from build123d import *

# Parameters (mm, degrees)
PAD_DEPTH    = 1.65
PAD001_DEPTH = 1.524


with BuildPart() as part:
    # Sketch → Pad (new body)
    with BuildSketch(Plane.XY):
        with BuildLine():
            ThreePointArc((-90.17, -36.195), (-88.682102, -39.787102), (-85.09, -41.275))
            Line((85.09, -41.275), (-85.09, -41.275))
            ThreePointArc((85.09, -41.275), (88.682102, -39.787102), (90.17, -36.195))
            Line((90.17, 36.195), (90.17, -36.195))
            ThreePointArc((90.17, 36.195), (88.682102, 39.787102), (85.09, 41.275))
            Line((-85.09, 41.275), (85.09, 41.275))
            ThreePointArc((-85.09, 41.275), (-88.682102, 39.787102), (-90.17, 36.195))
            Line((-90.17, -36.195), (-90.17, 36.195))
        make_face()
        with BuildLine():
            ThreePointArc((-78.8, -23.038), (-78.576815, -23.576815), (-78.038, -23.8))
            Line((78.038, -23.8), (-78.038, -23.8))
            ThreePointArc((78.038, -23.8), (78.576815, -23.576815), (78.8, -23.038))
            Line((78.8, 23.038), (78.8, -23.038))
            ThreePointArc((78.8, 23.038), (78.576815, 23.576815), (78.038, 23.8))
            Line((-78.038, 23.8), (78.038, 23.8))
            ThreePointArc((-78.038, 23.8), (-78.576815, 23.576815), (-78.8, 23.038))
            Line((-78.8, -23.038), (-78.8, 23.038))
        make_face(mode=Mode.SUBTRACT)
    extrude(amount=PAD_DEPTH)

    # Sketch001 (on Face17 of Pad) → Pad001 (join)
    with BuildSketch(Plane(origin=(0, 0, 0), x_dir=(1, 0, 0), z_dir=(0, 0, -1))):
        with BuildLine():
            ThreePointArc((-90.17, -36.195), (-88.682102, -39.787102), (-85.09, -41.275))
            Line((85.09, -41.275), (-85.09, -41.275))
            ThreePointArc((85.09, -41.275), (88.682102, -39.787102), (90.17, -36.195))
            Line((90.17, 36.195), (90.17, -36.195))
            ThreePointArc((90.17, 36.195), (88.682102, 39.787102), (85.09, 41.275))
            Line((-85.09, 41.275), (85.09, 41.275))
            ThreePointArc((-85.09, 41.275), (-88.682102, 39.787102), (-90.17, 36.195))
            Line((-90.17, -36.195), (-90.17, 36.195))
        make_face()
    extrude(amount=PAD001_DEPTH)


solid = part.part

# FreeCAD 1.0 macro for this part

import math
import FreeCAD as App
import Part
import Sketcher
Q = App.Units.Quantity

doc = App.newDocument("Part")
params = doc.addObject("Spreadsheet::Sheet", "Params")
for row, (alias, value) in enumerate([
    ("sketch1_radius", "0.2000001 in"),
    ("sketch1_radius2", "0.03 in"),
    ("sketch1_width", "6.7 in"),
    ("sketch1_height", "2.85 in"),
    ("pad1_length", "1.65 mm"),
    ("sketch2_radius", "0.2000001 in"),
    ("sketch2_width", "6.7 in"),
    ("sketch2_height", "2.85 in"),
    ("pad2_length", "0.06 in"),
], start=1):
    params.set(f"A{row}", alias)
    params.set(f"B{row}", "=" + value)
    params.setAlias(f"B{row}", alias)

body = doc.addObject("PartDesign::Body", "Body")

# Sketch on XY plane
sketch1 = body.newObject("Sketcher::SketchObject", "Sketch")
sketch1.AttachmentSupport = (doc.getObject("XY_Plane"), [""])
sketch1.MapMode = "FlatFace"
sketch1.addGeometry([
    Part.ArcOfCircle(Part.Circle(App.Vector(-85.089998, -36.194998, 0), App.Vector(0, 0, 1), 5.080002), math.radians(-179.999983), math.radians(-90.000017)),  # 0
    Part.LineSegment(App.Vector(-85.09, -41.275, 0), App.Vector(85.09, -41.275, 0)),  # 1
    Part.ArcOfCircle(Part.Circle(App.Vector(85.089998, -36.194998, 0), App.Vector(0, 0, 1), 5.080002), math.radians(-89.999983), math.radians(-0.000017)),  # 2
    Part.LineSegment(App.Vector(90.17, -36.195, 0), App.Vector(90.17, 36.195, 0)),  # 3
    Part.ArcOfCircle(Part.Circle(App.Vector(85.089998, 36.194998, 0), App.Vector(0, 0, 1), 5.080002), math.radians(0.000017), math.radians(89.999983)),  # 4
    Part.LineSegment(App.Vector(85.09, 41.275, 0), App.Vector(-85.09, 41.275, 0)),  # 5
    Part.ArcOfCircle(Part.Circle(App.Vector(-85.089998, 36.194998, 0), App.Vector(0, 0, 1), 5.080002), math.radians(90.000017), math.radians(179.999983)),  # 6
    Part.LineSegment(App.Vector(-90.17, 36.195, 0), App.Vector(-90.17, -36.195, 0)),  # 7
    Part.ArcOfCircle(Part.Circle(App.Vector(-78.037999, -23.037999, 0), App.Vector(0, 0, 1), 0.762001), math.radians(-179.999906), math.radians(-90.000094)),  # 8
    Part.LineSegment(App.Vector(-78.8, -23.038, 0), App.Vector(-78.8, 23.038, 0)),  # 9
    Part.ArcOfCircle(Part.Circle(App.Vector(-78.037999, 23.037999, 0), App.Vector(0, 0, 1), 0.762001), math.radians(90.000094), math.radians(179.999906)),  # 10
    Part.LineSegment(App.Vector(-78.038, 23.8, 0), App.Vector(78.038, 23.8, 0)),  # 11
    Part.ArcOfCircle(Part.Circle(App.Vector(78.037999, 23.037999, 0), App.Vector(0, 0, 1), 0.762001), math.radians(0.000094), math.radians(89.999906)),  # 12
    Part.LineSegment(App.Vector(78.8, 23.038, 0), App.Vector(78.8, -23.038, 0)),  # 13
    Part.ArcOfCircle(Part.Circle(App.Vector(78.037999, -23.037999, 0), App.Vector(0, 0, 1), 0.762001), math.radians(-89.999906), math.radians(-0.000094)),  # 14
    Part.LineSegment(App.Vector(78.038, -23.8, 0), App.Vector(-78.038, -23.8, 0)),  # 15
], False)
sketch1.addConstraint([
    Sketcher.Constraint("Tangent", 0, 2, 1, 1),
    Sketcher.Constraint("Tangent", 1, 2, 2, 1),
    Sketcher.Constraint("Tangent", 2, 2, 3, 1),
    Sketcher.Constraint("Tangent", 3, 2, 4, 1),
    Sketcher.Constraint("Tangent", 4, 2, 5, 1),
    Sketcher.Constraint("Tangent", 5, 2, 6, 1),
    Sketcher.Constraint("Tangent", 6, 2, 7, 1),
    Sketcher.Constraint("Tangent", 7, 2, 0, 1),
    Sketcher.Constraint("Tangent", 8, 1, 9, 1),
    Sketcher.Constraint("Tangent", 9, 2, 10, 2),
    Sketcher.Constraint("Tangent", 10, 1, 11, 1),
    Sketcher.Constraint("Tangent", 11, 2, 12, 2),
    Sketcher.Constraint("Tangent", 12, 1, 13, 1),
    Sketcher.Constraint("Tangent", 13, 2, 14, 2),
    Sketcher.Constraint("Tangent", 14, 1, 15, 1),
    Sketcher.Constraint("Tangent", 15, 2, 8, 2),
    Sketcher.Constraint("Horizontal", 1),
    Sketcher.Constraint("Vertical", 3),
    Sketcher.Constraint("Horizontal", 5),
    Sketcher.Constraint("Vertical", 7),
    Sketcher.Constraint("Vertical", 9),
    Sketcher.Constraint("Horizontal", 11),
    Sketcher.Constraint("Vertical", 13),
    Sketcher.Constraint("Horizontal", 15),
    Sketcher.Constraint("Equal", 0, 2),
    Sketcher.Constraint("Equal", 2, 4),
    Sketcher.Constraint("Equal", 4, 6),
    Sketcher.Constraint("Equal", 8, 10),
    Sketcher.Constraint("Equal", 10, 12),
    Sketcher.Constraint("Equal", 12, 14),
    Sketcher.Constraint("Symmetric", 0, 3, 4, 3, -1, 1),
    Sketcher.Constraint("Symmetric", 8, 3, 12, 3, -1, 1),
    Sketcher.Constraint("Radius", 0, Q("0.2000001 in")),
    Sketcher.Constraint("Radius", 8, Q("0.03 in")),
    Sketcher.Constraint("DistanceX", 1, 1, 1, 2, Q("6.7 in")),
    Sketcher.Constraint("DistanceY", 3, 1, 3, 2, Q("2.85 in")),
    Sketcher.Constraint("DistanceX", 11, 1, 11, 2, Q("156.076 mm")),
    Sketcher.Constraint("DistanceY", 9, 1, 9, 2, Q("46.076 mm")),
])
sketch1.setExpression("Constraints[32]", "Params.sketch1_radius")
sketch1.setExpression("Constraints[33]", "Params.sketch1_radius2")
sketch1.setExpression("Constraints[34]", "Params.sketch1_width")
sketch1.setExpression("Constraints[35]", "Params.sketch1_height")
pad1 = body.newObject("PartDesign::Pad", "Pad")
pad1.Profile = sketch1
pad1.setExpression("Length", "Params.pad1_length")

# Sketch on XY plane
sketch2 = body.newObject("Sketcher::SketchObject", "Sketch001")
sketch2.AttachmentSupport = (doc.getObject("XY_Plane"), [""])
sketch2.MapMode = "FlatFace"
sketch2.addGeometry([
    Part.ArcOfCircle(Part.Circle(App.Vector(-85.089998, 36.194998, 0), App.Vector(0, 0, 1), 5.080002), math.radians(90.000017), math.radians(179.999983)),  # 0
    Part.LineSegment(App.Vector(-85.09, 41.275, 0), App.Vector(85.09, 41.275, 0)),  # 1
    Part.ArcOfCircle(Part.Circle(App.Vector(85.089998, 36.194998, 0), App.Vector(0, 0, 1), 5.080002), math.radians(0.000017), math.radians(89.999983)),  # 2
    Part.LineSegment(App.Vector(90.17, 36.195, 0), App.Vector(90.17, -36.195, 0)),  # 3
    Part.ArcOfCircle(Part.Circle(App.Vector(85.089998, -36.194998, 0), App.Vector(0, 0, 1), 5.080002), math.radians(-89.999983), math.radians(-0.000017)),  # 4
    Part.LineSegment(App.Vector(85.09, -41.275, 0), App.Vector(-85.09, -41.275, 0)),  # 5
    Part.ArcOfCircle(Part.Circle(App.Vector(-85.089998, -36.194998, 0), App.Vector(0, 0, 1), 5.080002), math.radians(-179.999983), math.radians(-90.000017)),  # 6
    Part.LineSegment(App.Vector(-90.17, -36.195, 0), App.Vector(-90.17, 36.195, 0)),  # 7
], False)
sketch2.addConstraint([
    Sketcher.Constraint("Tangent", 0, 1, 1, 1),
    Sketcher.Constraint("Tangent", 1, 2, 2, 2),
    Sketcher.Constraint("Tangent", 2, 1, 3, 1),
    Sketcher.Constraint("Tangent", 3, 2, 4, 2),
    Sketcher.Constraint("Tangent", 4, 1, 5, 1),
    Sketcher.Constraint("Tangent", 5, 2, 6, 2),
    Sketcher.Constraint("Tangent", 6, 1, 7, 1),
    Sketcher.Constraint("Tangent", 7, 2, 0, 2),
    Sketcher.Constraint("Horizontal", 1),
    Sketcher.Constraint("Vertical", 3),
    Sketcher.Constraint("Horizontal", 5),
    Sketcher.Constraint("Vertical", 7),
    Sketcher.Constraint("Equal", 0, 2),
    Sketcher.Constraint("Equal", 2, 4),
    Sketcher.Constraint("Equal", 4, 6),
    Sketcher.Constraint("Symmetric", 0, 3, 4, 3, -1, 1),
    Sketcher.Constraint("Radius", 0, Q("0.2000001 in")),
    Sketcher.Constraint("DistanceX", 1, 1, 1, 2, Q("6.7 in")),
    Sketcher.Constraint("DistanceY", 3, 2, 3, 1, Q("2.85 in")),
])
sketch2.setExpression("Constraints[16]", "Params.sketch2_radius")
sketch2.setExpression("Constraints[17]", "Params.sketch2_width")
sketch2.setExpression("Constraints[18]", "Params.sketch2_height")
pad2 = body.newObject("PartDesign::Pad", "Pad001")
pad2.Profile = sketch2
pad2.setExpression("Length", "Params.pad2_length")
pad2.Reversed = True

doc.recompute()
